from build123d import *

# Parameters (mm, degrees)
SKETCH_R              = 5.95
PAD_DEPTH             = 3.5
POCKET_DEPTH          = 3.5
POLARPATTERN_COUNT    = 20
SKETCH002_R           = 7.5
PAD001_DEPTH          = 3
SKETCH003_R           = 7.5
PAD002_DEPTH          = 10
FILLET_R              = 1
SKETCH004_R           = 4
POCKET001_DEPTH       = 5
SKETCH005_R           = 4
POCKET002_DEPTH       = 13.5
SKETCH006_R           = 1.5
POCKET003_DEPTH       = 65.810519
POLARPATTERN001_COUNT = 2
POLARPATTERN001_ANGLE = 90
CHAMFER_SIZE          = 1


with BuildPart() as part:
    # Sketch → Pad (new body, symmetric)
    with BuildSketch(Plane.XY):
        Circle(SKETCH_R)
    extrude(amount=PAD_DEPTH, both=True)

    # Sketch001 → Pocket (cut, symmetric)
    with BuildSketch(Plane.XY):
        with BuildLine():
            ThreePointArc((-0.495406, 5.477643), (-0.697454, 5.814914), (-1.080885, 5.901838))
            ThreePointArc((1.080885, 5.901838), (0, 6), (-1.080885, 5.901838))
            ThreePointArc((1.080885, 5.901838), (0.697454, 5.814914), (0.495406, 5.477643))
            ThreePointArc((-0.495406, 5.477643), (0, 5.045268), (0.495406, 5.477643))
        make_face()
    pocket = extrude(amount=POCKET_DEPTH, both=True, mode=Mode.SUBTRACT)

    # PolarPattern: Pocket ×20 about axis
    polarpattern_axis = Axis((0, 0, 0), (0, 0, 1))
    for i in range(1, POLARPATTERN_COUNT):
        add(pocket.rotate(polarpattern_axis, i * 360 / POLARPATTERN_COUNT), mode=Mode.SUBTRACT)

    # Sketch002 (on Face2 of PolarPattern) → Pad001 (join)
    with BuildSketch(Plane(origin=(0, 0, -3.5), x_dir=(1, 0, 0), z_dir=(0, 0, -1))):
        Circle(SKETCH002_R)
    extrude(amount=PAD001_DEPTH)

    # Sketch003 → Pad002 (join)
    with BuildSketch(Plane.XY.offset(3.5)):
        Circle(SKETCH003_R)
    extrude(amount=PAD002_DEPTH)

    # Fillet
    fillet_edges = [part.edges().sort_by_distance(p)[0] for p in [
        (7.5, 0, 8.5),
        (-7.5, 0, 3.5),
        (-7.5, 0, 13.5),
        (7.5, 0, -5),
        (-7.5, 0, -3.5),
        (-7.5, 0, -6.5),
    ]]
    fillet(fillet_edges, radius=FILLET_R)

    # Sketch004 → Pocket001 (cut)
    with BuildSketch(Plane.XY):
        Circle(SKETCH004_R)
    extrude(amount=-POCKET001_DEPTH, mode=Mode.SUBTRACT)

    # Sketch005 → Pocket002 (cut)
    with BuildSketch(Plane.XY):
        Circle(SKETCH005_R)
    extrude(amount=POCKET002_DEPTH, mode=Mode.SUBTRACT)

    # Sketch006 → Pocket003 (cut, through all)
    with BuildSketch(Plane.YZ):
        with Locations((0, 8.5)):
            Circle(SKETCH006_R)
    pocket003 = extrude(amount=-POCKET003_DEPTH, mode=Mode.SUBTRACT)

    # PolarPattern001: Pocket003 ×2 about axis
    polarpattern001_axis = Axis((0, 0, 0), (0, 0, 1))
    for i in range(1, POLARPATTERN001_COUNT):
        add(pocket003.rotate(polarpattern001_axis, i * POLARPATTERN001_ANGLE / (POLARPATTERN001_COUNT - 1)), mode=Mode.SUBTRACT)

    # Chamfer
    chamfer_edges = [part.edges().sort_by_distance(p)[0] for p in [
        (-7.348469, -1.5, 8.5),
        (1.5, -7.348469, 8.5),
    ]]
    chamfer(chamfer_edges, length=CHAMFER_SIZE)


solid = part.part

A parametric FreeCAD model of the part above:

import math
import FreeCAD as App
import Part
import Sketcher

V = App.Vector


def edges_at(feature, points):
    """Names of the edges that pass closest to the given points."""
    edges = feature.Shape.Edges
    near = lambda p: min(range(len(edges)), key=lambda i: edges[i].distToShape(Part.Vertex(*p))[0])
    return sorted({f"Edge{near(p) + 1}" for p in points})

doc = App.newDocument("Part")
params = doc.addObject("Spreadsheet::Sheet", "Params")
for row, (alias, value) in enumerate([
    ("sketch1_diameter", "11.9 mm"),
    ("pad1_length", "7 mm"),
    ("sketch2_radius", "0.500001 mm"),
    ("pocket1_length", "7 mm"),
    ("sketch3_diameter", "15 mm"),
    ("pad2_length", "3 mm"),
    ("sketch4_diameter", "15 mm"),
    ("pad3_length", "10 mm"),
    ("fillet_radius", "1 mm"),
    ("sketch5_diameter", "8 mm"),
    ("pocket2_length", "5 mm"),
    ("sketch6_diameter", "8 mm"),
    ("pocket3_length", "13.5 mm"),
    ("sketch7_diameter", "3 mm"),
    ("chamfer_size", "1 mm"),
], start=1):
    params.set(f"A{row}", alias)
    params.set(f"B{row}", "=" + value)
    params.setAlias(f"B{row}", alias)

body = doc.addObject("PartDesign::Body", "Body")

# Sketch on XY plane
sketch1 = body.newObject("Sketcher::SketchObject", "Sketch")
sketch1.AttachmentSupport = (doc.getObject("XY_Plane"), [""])
sketch1.MapMode = "FlatFace"
sketch1.addGeometry(Part.Circle(V(0, 0, 0), V(0, 0, 1), 6), False)
sketch1.addConstraint(Sketcher.Constraint("Coincident", 0, 3, -1, 1))
sketch1.addConstraint(Sketcher.Constraint("Diameter", 0, 11.9))
sketch1.setExpression("Constraints[1]", "Params.sketch1_diameter")
pad1 = body.newObject("PartDesign::Pad", "Pad")
pad1.Profile = sketch1
pad1.setExpression("Length", "Params.pad1_length")
pad1.Midplane = True

# Sketch on XY plane
sketch2 = body.newObject("Sketcher::SketchObject", "Sketch001")
sketch2.AttachmentSupport = (doc.getObject("XY_Plane"), [""])
sketch2.MapMode = "FlatFace"
sketch2.addGeometry(Part.ArcOfCircle(Part.Circle(V(-1, 5.4, 0), V(0, 0, 1), 0.5), math.radians(8), math.radians(100)), False)
sketch2.addGeometry(Part.ArcOfCircle(Part.Circle(V(0, 5.5, 0), V(0, 0, 1), 0.5), math.radians(-172), math.radians(-8)), False)
sketch2.addGeometry(Part.ArcOfCircle(Part.Circle(V(1, 5.4, 0), V(0, 0, 1), 0.5), math.radians(80), math.radians(172)), False)
sketch2.addGeometry(Part.ArcOfCircle(Part.Circle(V(0, 0, 0), V(0, 0, 1), 6), math.radians(80), math.radians(100)), False)
sketch2.addConstraint(Sketcher.Constraint("Tangent", 0, 1, 1, 1))
sketch2.addConstraint(Sketcher.Constraint("Tangent", 1, 2, 2, 2))
sketch2.addConstraint(Sketcher.Constraint("Coincident", 2, 1, 3, 1))
sketch2.addConstraint(Sketcher.Constraint("Coincident", 3, 2, 0, 2))
sketch2.addConstraint(Sketcher.Constraint("Equal", 0, 1))
sketch2.addConstraint(Sketcher.Constraint("Equal", 1, 2))
sketch2.addConstraint(Sketcher.Constraint("Symmetric", 0, 3, 2, 3, -2))
sketch2.addConstraint(Sketcher.Constraint("Horizontal", 2, 1, 3, 2))
sketch2.addConstraint(Sketcher.Constraint("Radius", 0, 0.500001))
sketch2.addConstraint(Sketcher.Constraint("Radius", 3, 6.000021))
sketch2.addConstraint(Sketcher.Constraint("DistanceY", -1, 1, 1, 3, 5.545268))
sketch2.addConstraint(Sketcher.Constraint("DistanceY", -1, 1, 2, 1, 5.901838))
sketch2.addConstraint(Sketcher.Constraint("DistanceY", 0, 3, 1, 3, 0.135252))
sketch2.setExpression("Constraints[8]", "Params.sketch2_radius")
pocket1 = body.newObject("PartDesign::Pocket", "Pocket")
pocket1.Profile = sketch2
pocket1.setExpression("Length", "Params.pocket1_length")
pocket1.Midplane = True
doc.recompute()

polarpattern = body.newObject("PartDesign::PolarPattern", "PolarPattern")
polarpattern.Originals = [pocket1]
polarpattern.Axis = (doc.getObject("Z_Axis"), [""])
polarpattern.Angle = 360
polarpattern.Occurrences = 20
body.Tip = polarpattern

# Sketch on XY plane
sketch3 = body.newObject("Sketcher::SketchObject", "Sketch002")
sketch3.AttachmentSupport = (doc.getObject("XY_Plane"), [""])
sketch3.MapMode = "FlatFace"
sketch3.AttachmentOffset = App.Placement(V(0, 0, -3.5), App.Rotation())
sketch3.addGeometry(Part.Circle(V(0, 0, 0), V(0, 0, 1), 8), False)
sketch3.addConstraint(Sketcher.Constraint("Coincident", 0, 3, -1, 1))
sketch3.addConstraint(Sketcher.Constraint("Diameter", 0, 15.0))
sketch3.setExpression("Constraints[1]", "Params.sketch3_diameter")
pad2 = body.newObject("PartDesign::Pad", "Pad001")
pad2.Profile = sketch3
pad2.setExpression("Length", "Params.pad2_length")
pad2.Reversed = True

# Sketch on XY plane
sketch4 = body.newObject("Sketcher::SketchObject", "Sketch003")
sketch4.AttachmentSupport = (doc.getObject("XY_Plane"), [""])
sketch4.MapMode = "FlatFace"
sketch4.AttachmentOffset = App.Placement(V(0, 0, 3.5), App.Rotation())
sketch4.addGeometry(Part.Circle(V(0, 0, 0), V(0, 0, 1), 8), False)
sketch4.addConstraint(Sketcher.Constraint("Coincident", 0, 3, -1, 1))
sketch4.addConstraint(Sketcher.Constraint("Diameter", 0, 15.0))
sketch4.setExpression("Constraints[1]", "Params.sketch4_diameter")
pad3 = body.newObject("PartDesign::Pad", "Pad002")
pad3.Profile = sketch4
pad3.setExpression("Length", "Params.pad3_length")
doc.recompute()

fillet = body.newObject("PartDesign::Fillet", "Fillet")
fillet.Base = (pad3, edges_at(pad3, [
    (7.5, 0, 8.5),
    (-7.5, 0, 3.5),
    (-7.5, 0, 13.5),
    (7.5, 0, -5),
    (-7.5, 0, -3.5),
    (-7.5, 0, -6.5),
]))
fillet.setExpression("Radius", "Params.fillet_radius")

# Sketch on XY plane
sketch5 = body.newObject("Sketcher::SketchObject", "Sketch004")
sketch5.AttachmentSupport = (doc.getObject("XY_Plane"), [""])
sketch5.MapMode = "FlatFace"
sketch5.addGeometry(Part.Circle(V(0, 0, 0), V(0, 0, 1), 4), False)
sketch5.addConstraint(Sketcher.Constraint("Coincident", 0, 3, -1, 1))
sketch5.addConstraint(Sketcher.Constraint("Diameter", 0, 8.0))
sketch5.setExpression("Constraints[1]", "Params.sketch5_diameter")
pocket2 = body.newObject("PartDesign::Pocket", "Pocket001")
pocket2.Profile = sketch5
pocket2.setExpression("Length", "Params.pocket2_length")

# Sketch on XY plane
sketch6 = body.newObject("Sketcher::SketchObject", "Sketch005")
sketch6.AttachmentSupport = (doc.getObject("XY_Plane"), [""])
sketch6.MapMode = "FlatFace"
sketch6.addGeometry(Part.Circle(V(0, 0, 0), V(0, 0, 1), 4), False)
sketch6.addConstraint(Sketcher.Constraint("Coincident", 0, 3, -1, 1))
sketch6.addConstraint(Sketcher.Constraint("Diameter", 0, 8.0))
sketch6.setExpression("Constraints[1]", "Params.sketch6_diameter")
pocket3 = body.newObject("PartDesign::Pocket", "Pocket002")
pocket3.Profile = sketch6
pocket3.setExpression("Length", "Params.pocket3_length")
pocket3.Reversed = True

# Sketch on YZ plane
sketch7 = body.newObject("Sketcher::SketchObject", "Sketch006")
sketch7.AttachmentSupport = (doc.getObject("YZ_Plane"), [""])
sketch7.MapMode = "FlatFace"
sketch7.addGeometry(Part.Circle(V(0, 8.5, 0), V(0, 0, 1), 1.5), False)
sketch7.addConstraint(Sketcher.Constraint("PointOnObject", 0, 3, -2))
sketch7.addConstraint(Sketcher.Constraint("Diameter", 0, 3.0))
sketch7.addConstraint(Sketcher.Constraint("DistanceY", -1, 1, 0, 3, 8.5))
sketch7.setExpression("Constraints[1]", "Params.sketch7_diameter")
pocket4 = body.newObject("PartDesign::Pocket", "Pocket003")
pocket4.Profile = sketch7
pocket4.Type = "ThroughAll"
doc.recompute()

polarpattern2 = body.newObject("PartDesign::PolarPattern", "PolarPattern001")
polarpattern2.Originals = [pocket4]
polarpattern2.Axis = (doc.getObject("Z_Axis"), [""])
polarpattern2.Angle = 90
polarpattern2.Occurrences = 2
body.Tip = polarpattern2
doc.recompute()

chamfer = body.newObject("PartDesign::Chamfer", "Chamfer")
chamfer.Base = (polarpattern2, edges_at(polarpattern2, [(-7.348, -1.5, 8.5), (1.5, -7.348, 8.5)]))
chamfer.setExpression("Size", "Params.chamfer_size")

doc.recompute()
